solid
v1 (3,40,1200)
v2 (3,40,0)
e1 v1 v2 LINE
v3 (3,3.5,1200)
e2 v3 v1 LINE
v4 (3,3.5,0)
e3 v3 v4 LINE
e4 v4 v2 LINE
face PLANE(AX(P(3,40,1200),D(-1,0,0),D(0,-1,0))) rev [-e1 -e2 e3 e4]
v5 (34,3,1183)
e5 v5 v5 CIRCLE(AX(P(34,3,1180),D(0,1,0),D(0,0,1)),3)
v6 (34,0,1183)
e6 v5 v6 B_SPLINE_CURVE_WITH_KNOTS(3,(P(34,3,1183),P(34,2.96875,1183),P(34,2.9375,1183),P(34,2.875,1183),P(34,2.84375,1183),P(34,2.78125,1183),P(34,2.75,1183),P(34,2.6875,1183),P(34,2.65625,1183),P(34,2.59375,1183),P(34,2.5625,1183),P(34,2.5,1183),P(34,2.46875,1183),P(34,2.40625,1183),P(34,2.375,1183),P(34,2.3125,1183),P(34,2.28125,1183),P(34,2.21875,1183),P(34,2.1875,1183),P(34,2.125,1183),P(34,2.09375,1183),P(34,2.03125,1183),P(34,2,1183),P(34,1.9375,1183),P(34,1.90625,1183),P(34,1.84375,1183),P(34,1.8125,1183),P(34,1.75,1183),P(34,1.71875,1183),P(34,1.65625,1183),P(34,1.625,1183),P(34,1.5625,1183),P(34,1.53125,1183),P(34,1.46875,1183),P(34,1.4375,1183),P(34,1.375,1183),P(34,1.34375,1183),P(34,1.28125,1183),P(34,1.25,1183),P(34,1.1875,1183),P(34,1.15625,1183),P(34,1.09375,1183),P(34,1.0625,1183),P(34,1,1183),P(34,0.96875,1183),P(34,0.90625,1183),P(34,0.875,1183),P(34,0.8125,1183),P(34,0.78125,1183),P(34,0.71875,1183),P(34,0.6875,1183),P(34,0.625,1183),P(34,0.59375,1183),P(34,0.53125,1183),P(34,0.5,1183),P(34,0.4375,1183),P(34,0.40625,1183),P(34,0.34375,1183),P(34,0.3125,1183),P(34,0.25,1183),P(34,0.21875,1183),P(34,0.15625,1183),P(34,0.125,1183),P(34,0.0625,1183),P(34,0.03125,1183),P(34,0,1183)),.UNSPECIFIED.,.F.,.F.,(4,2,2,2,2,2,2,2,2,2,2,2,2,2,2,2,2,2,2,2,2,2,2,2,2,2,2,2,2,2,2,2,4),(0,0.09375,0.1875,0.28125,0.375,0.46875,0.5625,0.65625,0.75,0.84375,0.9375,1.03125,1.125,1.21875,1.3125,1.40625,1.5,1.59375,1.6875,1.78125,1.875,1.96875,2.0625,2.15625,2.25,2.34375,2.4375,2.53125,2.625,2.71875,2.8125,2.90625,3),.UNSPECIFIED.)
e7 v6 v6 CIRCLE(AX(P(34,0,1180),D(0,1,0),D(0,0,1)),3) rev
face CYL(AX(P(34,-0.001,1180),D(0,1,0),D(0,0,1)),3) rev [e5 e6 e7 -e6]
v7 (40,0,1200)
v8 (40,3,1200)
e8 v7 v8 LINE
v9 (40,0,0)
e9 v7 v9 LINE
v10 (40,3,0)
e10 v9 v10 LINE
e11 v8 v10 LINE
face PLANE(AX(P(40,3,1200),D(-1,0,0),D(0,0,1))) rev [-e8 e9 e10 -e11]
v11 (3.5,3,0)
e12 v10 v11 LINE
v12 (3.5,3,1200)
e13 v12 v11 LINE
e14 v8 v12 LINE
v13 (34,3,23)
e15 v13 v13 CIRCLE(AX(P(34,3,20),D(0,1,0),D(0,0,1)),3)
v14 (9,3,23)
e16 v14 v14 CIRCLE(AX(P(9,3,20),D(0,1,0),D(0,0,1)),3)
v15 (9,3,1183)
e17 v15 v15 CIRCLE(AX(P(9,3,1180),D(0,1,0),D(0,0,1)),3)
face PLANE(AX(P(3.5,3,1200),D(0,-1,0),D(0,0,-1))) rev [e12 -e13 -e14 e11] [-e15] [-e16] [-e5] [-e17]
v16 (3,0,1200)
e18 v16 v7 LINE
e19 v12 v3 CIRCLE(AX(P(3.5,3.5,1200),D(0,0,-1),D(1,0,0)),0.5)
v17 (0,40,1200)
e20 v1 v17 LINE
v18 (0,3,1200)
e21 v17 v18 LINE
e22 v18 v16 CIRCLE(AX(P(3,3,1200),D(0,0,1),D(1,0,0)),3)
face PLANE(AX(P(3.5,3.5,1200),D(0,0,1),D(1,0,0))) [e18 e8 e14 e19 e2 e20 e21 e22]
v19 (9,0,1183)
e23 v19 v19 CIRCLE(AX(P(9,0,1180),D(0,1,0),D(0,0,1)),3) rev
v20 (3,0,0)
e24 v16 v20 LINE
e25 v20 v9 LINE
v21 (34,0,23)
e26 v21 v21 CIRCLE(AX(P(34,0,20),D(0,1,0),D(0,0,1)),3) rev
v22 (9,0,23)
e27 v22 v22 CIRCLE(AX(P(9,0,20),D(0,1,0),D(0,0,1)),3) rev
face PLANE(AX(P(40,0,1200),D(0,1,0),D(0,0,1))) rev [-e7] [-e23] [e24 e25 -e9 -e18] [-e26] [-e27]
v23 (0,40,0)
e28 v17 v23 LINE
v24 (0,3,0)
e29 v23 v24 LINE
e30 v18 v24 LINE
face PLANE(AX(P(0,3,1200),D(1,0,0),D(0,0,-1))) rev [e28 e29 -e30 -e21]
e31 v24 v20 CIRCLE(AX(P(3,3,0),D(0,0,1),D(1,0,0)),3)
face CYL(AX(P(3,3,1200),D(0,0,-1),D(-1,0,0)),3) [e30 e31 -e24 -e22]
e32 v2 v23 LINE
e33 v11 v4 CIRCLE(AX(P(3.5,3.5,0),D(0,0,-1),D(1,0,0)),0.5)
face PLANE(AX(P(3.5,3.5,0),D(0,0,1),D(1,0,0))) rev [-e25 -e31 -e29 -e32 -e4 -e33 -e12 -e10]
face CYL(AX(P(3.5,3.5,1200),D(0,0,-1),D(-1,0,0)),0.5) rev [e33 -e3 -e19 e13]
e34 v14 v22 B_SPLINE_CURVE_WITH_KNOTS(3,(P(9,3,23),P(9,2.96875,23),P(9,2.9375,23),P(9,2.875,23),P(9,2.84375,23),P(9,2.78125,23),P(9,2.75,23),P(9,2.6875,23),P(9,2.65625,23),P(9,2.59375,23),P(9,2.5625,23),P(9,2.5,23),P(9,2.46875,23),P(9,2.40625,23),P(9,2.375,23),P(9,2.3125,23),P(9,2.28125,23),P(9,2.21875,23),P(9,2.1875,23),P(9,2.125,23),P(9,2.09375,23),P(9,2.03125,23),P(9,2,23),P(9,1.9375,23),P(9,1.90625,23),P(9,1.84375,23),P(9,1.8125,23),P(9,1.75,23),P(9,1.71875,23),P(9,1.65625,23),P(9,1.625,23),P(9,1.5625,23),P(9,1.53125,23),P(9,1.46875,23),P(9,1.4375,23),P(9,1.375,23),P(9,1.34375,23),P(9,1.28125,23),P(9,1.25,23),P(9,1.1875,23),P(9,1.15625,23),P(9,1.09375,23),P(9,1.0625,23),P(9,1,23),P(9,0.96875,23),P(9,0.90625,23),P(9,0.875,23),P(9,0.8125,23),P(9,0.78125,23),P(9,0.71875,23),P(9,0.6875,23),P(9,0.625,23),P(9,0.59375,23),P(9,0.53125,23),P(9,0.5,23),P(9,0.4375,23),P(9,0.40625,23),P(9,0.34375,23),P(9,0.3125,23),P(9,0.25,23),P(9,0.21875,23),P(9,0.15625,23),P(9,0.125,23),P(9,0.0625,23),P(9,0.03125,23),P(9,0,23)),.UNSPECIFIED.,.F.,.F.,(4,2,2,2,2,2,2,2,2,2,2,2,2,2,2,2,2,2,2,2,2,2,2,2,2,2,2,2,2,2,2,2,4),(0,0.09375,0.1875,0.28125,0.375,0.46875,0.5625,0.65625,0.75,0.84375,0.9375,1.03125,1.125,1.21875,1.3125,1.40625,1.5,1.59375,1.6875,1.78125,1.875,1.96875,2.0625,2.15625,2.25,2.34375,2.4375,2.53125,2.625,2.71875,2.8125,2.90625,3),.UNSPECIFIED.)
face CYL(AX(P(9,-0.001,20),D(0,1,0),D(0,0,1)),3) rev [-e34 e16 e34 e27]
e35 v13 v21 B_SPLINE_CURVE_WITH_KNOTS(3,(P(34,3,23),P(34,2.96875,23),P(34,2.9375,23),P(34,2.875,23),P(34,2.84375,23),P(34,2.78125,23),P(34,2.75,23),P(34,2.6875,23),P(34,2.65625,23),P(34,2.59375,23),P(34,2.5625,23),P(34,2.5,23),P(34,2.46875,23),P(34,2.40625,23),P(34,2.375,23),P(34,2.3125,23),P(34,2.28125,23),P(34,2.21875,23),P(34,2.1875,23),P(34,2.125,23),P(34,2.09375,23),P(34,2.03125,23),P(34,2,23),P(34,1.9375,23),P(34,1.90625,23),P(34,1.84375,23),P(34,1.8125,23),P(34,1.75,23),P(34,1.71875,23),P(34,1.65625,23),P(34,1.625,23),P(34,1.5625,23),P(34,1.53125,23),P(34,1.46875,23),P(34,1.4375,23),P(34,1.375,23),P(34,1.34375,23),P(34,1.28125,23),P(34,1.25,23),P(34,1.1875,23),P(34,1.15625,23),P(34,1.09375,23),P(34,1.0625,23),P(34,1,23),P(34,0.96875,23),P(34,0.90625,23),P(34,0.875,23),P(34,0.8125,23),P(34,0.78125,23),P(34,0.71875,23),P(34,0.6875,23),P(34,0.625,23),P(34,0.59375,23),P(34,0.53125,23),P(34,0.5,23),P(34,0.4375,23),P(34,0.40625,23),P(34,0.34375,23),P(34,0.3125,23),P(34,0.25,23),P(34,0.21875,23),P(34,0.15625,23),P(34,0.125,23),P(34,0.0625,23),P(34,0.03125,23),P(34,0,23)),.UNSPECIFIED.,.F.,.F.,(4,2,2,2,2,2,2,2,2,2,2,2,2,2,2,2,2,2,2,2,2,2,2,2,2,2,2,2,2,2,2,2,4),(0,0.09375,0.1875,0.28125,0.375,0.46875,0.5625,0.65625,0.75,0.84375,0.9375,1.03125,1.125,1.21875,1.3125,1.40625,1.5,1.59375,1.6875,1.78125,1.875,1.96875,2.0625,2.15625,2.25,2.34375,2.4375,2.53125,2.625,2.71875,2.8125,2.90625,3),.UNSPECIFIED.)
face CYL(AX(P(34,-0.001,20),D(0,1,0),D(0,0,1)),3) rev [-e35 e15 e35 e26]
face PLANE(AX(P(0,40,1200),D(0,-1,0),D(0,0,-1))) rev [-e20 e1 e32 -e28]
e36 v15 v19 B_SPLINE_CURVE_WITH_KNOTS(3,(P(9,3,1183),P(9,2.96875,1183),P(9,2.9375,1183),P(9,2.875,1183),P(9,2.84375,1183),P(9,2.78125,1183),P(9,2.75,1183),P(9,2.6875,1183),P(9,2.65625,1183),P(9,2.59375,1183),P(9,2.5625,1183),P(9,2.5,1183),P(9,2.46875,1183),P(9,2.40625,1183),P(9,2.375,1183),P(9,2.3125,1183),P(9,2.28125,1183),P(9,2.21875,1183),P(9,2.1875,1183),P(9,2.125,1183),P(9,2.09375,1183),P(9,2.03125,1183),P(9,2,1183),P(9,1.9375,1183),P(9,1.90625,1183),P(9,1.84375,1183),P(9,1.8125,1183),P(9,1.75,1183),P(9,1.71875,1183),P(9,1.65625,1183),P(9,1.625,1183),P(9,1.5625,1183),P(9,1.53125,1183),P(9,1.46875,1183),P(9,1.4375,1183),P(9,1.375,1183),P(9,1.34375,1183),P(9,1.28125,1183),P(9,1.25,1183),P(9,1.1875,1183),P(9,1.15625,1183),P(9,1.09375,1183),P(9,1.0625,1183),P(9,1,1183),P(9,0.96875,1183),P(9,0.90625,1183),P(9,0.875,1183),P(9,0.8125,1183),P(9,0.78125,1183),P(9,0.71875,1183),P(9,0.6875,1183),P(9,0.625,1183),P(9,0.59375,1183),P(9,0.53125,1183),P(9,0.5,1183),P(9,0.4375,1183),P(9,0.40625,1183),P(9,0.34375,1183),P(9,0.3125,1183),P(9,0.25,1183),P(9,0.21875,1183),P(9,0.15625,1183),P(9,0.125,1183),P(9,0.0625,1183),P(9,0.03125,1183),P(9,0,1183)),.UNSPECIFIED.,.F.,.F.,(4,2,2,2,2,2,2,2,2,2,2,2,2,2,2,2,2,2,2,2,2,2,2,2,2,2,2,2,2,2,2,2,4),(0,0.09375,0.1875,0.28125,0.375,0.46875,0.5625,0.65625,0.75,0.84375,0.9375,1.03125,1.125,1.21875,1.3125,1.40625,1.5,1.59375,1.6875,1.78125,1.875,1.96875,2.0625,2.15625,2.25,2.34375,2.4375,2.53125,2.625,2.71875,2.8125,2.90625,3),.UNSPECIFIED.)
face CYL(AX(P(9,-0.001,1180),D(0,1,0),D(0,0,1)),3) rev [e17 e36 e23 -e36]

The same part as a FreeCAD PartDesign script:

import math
import FreeCAD as App
import Part
import Sketcher
from FreeCAD import Vector

doc = App.newDocument("Part")
params = doc.addObject("Spreadsheet::Sheet", "Params")
for row, (alias, value) in enumerate([
    ("sketch1_radius", "3 mm"),
    ("sketch1_radius2", "0.5 mm"),
    ("sketch1_width", "37 mm"),
    ("pad1_length", "1200 mm"),
    ("sketch2_diameter", "6 mm"),
    ("sketch3_diameter", "6 mm"),
    ("sketch4_diameter", "6 mm"),
    ("sketch5_diameter", "6 mm"),
], start=1):
    params.set(f"A{row}", alias)
    params.set(f"B{row}", "=" + value)
    params.setAlias(f"B{row}", alias)

body = doc.addObject("PartDesign::Body", "Body")

# Sketch on XY plane
sketch1 = body.newObject("Sketcher::SketchObject", "Sketch")
sketch1.AttachmentSupport = (doc.getObject("XY_Plane"), [""])
sketch1.MapMode = "FlatFace"
sketch1.addGeometry([
    Part.LineSegment(Vector(0, 40, 0), Vector(0, 3, 0)),  # 0
    Part.ArcOfCircle(Part.Circle(Vector(3, 3, 0), Vector(0, 0, 1), 3), math.radians(180), math.radians(270)),  # 1
    Part.LineSegment(Vector(3, 0, 0), Vector(40, 0, 0)),  # 2
    Part.LineSegment(Vector(40, 0, 0), Vector(40, 3, 0)),  # 3
    Part.LineSegment(Vector(40, 3, 0), Vector(3.5, 3, 0)),  # 4
    Part.ArcOfCircle(Part.Circle(Vector(3.5, 3.5, 0), Vector(0, 0, 1), 0.5), math.radians(180), math.radians(270)),  # 5
    Part.LineSegment(Vector(3, 3.5, 0), Vector(3, 40, 0)),  # 6
    Part.LineSegment(Vector(3, 40, 0), Vector(0, 40, 0)),  # 7
], False)
sketch1.addConstraint([
    Sketcher.Constraint("Tangent", 0, 2, 1, 1),
    Sketcher.Constraint("Tangent", 1, 2, 2, 1),
    Sketcher.Constraint("Coincident", 2, 2, 3, 1),
    Sketcher.Constraint("Coincident", 3, 2, 4, 1),
    Sketcher.Constraint("Tangent", 4, 2, 5, 2),
    Sketcher.Constraint("Tangent", 5, 1, 6, 1),
    Sketcher.Constraint("Coincident", 6, 2, 7, 1),
    Sketcher.Constraint("Coincident", 7, 2, 0, 1),
    Sketcher.Constraint("Vertical", 0),
    Sketcher.Constraint("Horizontal", 2),
    Sketcher.Constraint("Vertical", 3),
    Sketcher.Constraint("Horizontal", 4),
    Sketcher.Constraint("Vertical", 6),
    Sketcher.Constraint("Horizontal", 7),
    Sketcher.Constraint("PointOnObject", 0, 2, -2),
    Sketcher.Constraint("PointOnObject", 1, 2, -1),
    Sketcher.Constraint("Horizontal", 0, 2, 3, 2),
    Sketcher.Constraint("Vertical", 1, 2, 5, 1),
    Sketcher.Constraint("Equal", 2, 0),
    Sketcher.Constraint("Radius", 1, 3.0),
    Sketcher.Constraint("Radius", 5, 0.5),
    Sketcher.Constraint("DistanceX", 2, 1, 2, 2, 37.0),
])
sketch1.setExpression("Constraints[19]", "Params.sketch1_radius")
sketch1.setExpression("Constraints[20]", "Params.sketch1_radius2")
sketch1.setExpression("Constraints[21]", "Params.sketch1_width")
pad1 = body.newObject("PartDesign::Pad", "Pad")
pad1.Profile = sketch1
pad1.setExpression("Length", "Params.pad1_length")

# Sketch on XZ plane
sketch2 = body.newObject("Sketcher::SketchObject", "Sketch001")
sketch2.AttachmentSupport = (doc.getObject("XZ_Plane"), [""])
sketch2.MapMode = "FlatFace"
sketch2.AttachmentOffset = App.Placement(Vector(0, 0, -3), App.Rotation())
sketch2.addGeometry(Part.Circle(Vector(9, 1180, 0), Vector(0, 0, 1), 3), False)
sketch2.addConstraint([
    Sketcher.Constraint("Diameter", 0, 6.0),
    Sketcher.Constraint("DistanceX", -1, 1, 0, 3, 9.0),
    Sketcher.Constraint("DistanceY", -1, 1, 0, 3, 1180.0),
])
sketch2.setExpression("Constraints[0]", "Params.sketch2_diameter")
pocket1 = body.newObject("PartDesign::Pocket", "Pocket")
pocket1.Profile = sketch2
pocket1.Type = "UpToFirst"
pocket1.Reversed = True

# Sketch on XZ plane
sketch3 = body.newObject("Sketcher::SketchObject", "Sketch002")
sketch3.AttachmentSupport = (doc.getObject("XZ_Plane"), [""])
sketch3.MapMode = "FlatFace"
sketch3.AttachmentOffset = App.Placement(Vector(0, 0, -3), App.Rotation())
sketch3.addGeometry(Part.Circle(Vector(34, 1180, 0), Vector(0, 0, 1), 3), False)
sketch3.addConstraint([
    Sketcher.Constraint("Diameter", 0, 6.0),
    Sketcher.Constraint("DistanceX", -1, 1, 0, 3, 34.0),
    Sketcher.Constraint("DistanceY", -1, 1, 0, 3, 1180.0),
])
sketch3.setExpression("Constraints[0]", "Params.sketch3_diameter")
pocket2 = body.newObject("PartDesign::Pocket", "Pocket001")
pocket2.Profile = sketch3
pocket2.Type = "UpToFirst"
pocket2.Reversed = True

# Sketch on XZ plane
sketch4 = body.newObject("Sketcher::SketchObject", "Sketch003")
sketch4.AttachmentSupport = (doc.getObject("XZ_Plane"), [""])
sketch4.MapMode = "FlatFace"
sketch4.AttachmentOffset = App.Placement(Vector(0, 0, -3), App.Rotation())
sketch4.addGeometry(Part.Circle(Vector(9, 20, 0), Vector(0, 0, 1), 3), False)
sketch4.addConstraint([
    Sketcher.Constraint("Diameter", 0, 6.0),
    Sketcher.Constraint("DistanceX", -1, 1, 0, 3, 9.0),
    Sketcher.Constraint("DistanceY", -1, 1, 0, 3, 20.0),
])
sketch4.setExpression("Constraints[0]", "Params.sketch4_diameter")
pocket3 = body.newObject("PartDesign::Pocket", "Pocket002")
pocket3.Profile = sketch4
pocket3.Type = "UpToFirst"
pocket3.Reversed = True

# Sketch on XZ plane
sketch5 = body.newObject("Sketcher::SketchObject", "Sketch004")
sketch5.AttachmentSupport = (doc.getObject("XZ_Plane"), [""])
sketch5.MapMode = "FlatFace"
sketch5.AttachmentOffset = App.Placement(Vector(0, 0, -3), App.Rotation())
sketch5.addGeometry(Part.Circle(Vector(34, 20, 0), Vector(0, 0, 1), 3), False)
sketch5.addConstraint([
    Sketcher.Constraint("Diameter", 0, 6.0),
    Sketcher.Constraint("DistanceX", -1, 1, 0, 3, 34.0),
    Sketcher.Constraint("DistanceY", -1, 1, 0, 3, 20.0),
])
sketch5.setExpression("Constraints[0]", "Params.sketch5_diameter")
pocket4 = body.newObject("PartDesign::Pocket", "Pocket003")
pocket4.Profile = sketch5
pocket4.Type = "UpToFirst"
pocket4.Reversed = True

doc.recompute()
